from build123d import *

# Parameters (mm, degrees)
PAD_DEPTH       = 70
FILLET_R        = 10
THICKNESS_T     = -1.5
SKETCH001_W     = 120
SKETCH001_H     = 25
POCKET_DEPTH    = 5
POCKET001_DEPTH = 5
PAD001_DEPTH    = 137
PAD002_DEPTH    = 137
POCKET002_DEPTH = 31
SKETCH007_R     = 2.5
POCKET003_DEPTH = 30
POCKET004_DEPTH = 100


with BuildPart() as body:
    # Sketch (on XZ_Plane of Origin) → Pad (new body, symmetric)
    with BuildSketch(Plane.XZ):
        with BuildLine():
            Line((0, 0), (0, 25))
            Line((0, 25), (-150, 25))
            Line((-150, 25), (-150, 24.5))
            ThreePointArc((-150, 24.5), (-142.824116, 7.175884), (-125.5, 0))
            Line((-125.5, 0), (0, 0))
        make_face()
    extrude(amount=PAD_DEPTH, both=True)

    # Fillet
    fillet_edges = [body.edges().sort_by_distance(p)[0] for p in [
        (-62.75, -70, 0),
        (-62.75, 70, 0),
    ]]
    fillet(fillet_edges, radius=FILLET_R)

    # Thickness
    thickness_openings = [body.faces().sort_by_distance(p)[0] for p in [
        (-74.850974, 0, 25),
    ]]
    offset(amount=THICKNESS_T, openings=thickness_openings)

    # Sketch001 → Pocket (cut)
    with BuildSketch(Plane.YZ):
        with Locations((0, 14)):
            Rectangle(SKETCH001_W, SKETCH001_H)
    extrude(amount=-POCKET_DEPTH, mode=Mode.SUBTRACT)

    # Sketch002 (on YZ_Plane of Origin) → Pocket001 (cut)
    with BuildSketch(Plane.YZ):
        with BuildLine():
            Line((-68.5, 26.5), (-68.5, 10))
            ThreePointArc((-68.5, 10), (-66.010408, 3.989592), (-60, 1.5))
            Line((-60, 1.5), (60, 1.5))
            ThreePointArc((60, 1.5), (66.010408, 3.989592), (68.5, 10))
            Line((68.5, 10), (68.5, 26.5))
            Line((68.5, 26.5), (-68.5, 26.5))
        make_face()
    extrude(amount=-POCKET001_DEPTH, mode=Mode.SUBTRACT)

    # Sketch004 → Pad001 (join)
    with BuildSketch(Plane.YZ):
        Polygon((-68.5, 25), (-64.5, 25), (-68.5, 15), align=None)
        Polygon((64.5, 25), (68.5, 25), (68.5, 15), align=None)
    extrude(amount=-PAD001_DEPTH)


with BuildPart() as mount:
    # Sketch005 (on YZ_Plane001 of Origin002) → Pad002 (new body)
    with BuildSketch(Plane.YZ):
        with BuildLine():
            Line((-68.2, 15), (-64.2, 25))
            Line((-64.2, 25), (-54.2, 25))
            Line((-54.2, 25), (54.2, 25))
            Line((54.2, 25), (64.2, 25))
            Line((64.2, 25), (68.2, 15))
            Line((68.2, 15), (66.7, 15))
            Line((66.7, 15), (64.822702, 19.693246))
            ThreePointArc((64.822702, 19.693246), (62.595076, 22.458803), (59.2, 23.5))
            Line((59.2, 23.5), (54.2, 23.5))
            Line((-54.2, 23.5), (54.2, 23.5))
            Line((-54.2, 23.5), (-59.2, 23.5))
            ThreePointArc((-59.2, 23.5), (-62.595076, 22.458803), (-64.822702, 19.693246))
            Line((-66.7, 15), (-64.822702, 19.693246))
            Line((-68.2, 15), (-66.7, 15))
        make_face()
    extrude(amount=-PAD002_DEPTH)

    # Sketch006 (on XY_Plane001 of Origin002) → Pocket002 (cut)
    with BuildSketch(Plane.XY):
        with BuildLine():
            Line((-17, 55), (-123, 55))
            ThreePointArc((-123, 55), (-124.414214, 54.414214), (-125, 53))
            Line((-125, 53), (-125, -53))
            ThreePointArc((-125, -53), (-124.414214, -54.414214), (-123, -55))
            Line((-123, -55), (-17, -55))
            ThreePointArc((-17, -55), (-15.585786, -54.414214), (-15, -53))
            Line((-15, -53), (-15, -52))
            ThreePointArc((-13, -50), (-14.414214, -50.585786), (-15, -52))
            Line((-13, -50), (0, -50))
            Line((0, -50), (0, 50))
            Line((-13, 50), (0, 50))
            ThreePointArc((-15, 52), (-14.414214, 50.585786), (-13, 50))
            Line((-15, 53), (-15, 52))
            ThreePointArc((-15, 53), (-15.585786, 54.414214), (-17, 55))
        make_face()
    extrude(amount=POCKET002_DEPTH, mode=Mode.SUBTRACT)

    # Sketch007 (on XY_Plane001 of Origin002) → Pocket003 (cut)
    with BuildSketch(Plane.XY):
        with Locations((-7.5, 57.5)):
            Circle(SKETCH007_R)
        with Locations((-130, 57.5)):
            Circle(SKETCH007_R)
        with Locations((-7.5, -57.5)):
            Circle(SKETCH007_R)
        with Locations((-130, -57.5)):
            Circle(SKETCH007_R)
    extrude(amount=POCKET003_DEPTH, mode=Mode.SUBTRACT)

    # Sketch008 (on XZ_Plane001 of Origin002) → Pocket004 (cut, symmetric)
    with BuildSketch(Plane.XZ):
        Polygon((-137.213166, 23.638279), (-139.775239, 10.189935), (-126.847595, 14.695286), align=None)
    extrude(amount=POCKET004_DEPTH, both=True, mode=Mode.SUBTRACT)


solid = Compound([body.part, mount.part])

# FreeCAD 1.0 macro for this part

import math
import FreeCAD as App
import Part
import Sketcher
from FreeCAD import Vector
Q = App.Units.Quantity


def edges_at(feature, points):
    """Names of the edges that pass closest to the given points."""
    edges = feature.Shape.Edges
    near = lambda p: min(range(len(edges)), key=lambda i: edges[i].distToShape(Part.Vertex(*p))[0])
    return sorted({f"Edge{near(p) + 1}" for p in points})


def faces_at(feature, points):
    """Names of the faces that lie closest to the given points."""
    faces = feature.Shape.Faces
    near = lambda p: min(range(len(faces)), key=lambda i: faces[i].distToShape(Part.Vertex(*p))[0])
    return sorted({f"Face{near(p) + 1}" for p in points})


def add_polygon(sketch, points):
    """Adds a closed chain of lines whose ends are joined by coincident constraints."""
    first, n = sketch.GeometryCount, len(points)
    for a, b in zip(points, points[1:] + points[:1]):
        sketch.addGeometry(Part.LineSegment(App.Vector(*a, 0), App.Vector(*b, 0)), False)
    for i in range(n):
        sketch.addConstraint(Sketcher.Constraint("Coincident", first + i, 2, first + (i + 1) % n, 1))

doc = App.newDocument("Part")
body = doc.addObject("PartDesign::Body", "Body")

# Sketch on XZ plane
sketch1 = doc.addObject("Sketcher::SketchObject", "Sketch")
body.addObject(sketch1)
sketch1.AttachmentSupport = (doc.XZ_Plane, [""])
sketch1.MapMode = "FlatFace"
sketch1.addGeometry([
    Part.LineSegment(Vector(0, 0, 0), Vector(0, 25, 0)),  # 0
    Part.LineSegment(Vector(0, 25, 0), Vector(-150, 25, 0)),  # 1
    Part.LineSegment(Vector(-150, 25, 0), Vector(-150, 24.5, 0)),  # 2
    Part.ArcOfCircle(Part.Circle(Vector(-125.5, 24.5, 0), Vector(0, 0, 1), 24.5), math.radians(-180), math.radians(-90)),  # 3
    Part.LineSegment(Vector(-125.5, 0, 0), Vector(0, 0, 0)),  # 4
], False)
sketch1.addConstraint([
    Sketcher.Constraint("Coincident", 0, 2, 1, 1),
    Sketcher.Constraint("Coincident", 1, 2, 2, 1),
    Sketcher.Constraint("Tangent", 2, 2, 3, 1),
    Sketcher.Constraint("Tangent", 3, 2, 4, 1),
    Sketcher.Constraint("Coincident", 4, 2, 0, 1),
    Sketcher.Constraint("Vertical", 0),
    Sketcher.Constraint("Horizontal", 1),
    Sketcher.Constraint("Vertical", 2),
    Sketcher.Constraint("Horizontal", 4),
    Sketcher.Constraint("Coincident", 4, 2, -1, 1),
    Sketcher.Constraint("Radius", 3, Q("24.5 mm")),
    Sketcher.Constraint("DistanceX", 1, 2, 1, 1, Q("150 mm")),
    Sketcher.Constraint("DistanceY", 0, 1, 0, 2, Q("25 mm")),
])
pad1 = doc.addObject("PartDesign::Pad", "Pad")
body.addObject(pad1)
pad1.Profile = sketch1
pad1.Length = 140
pad1.Midplane = True
doc.recompute()

fillet = doc.addObject("PartDesign::Fillet", "Fillet")
body.addObject(fillet)
fillet.Base = (pad1, edges_at(pad1, [(-62.75, -70, 0), (-62.75, 70, 0)]))
fillet.Radius = 10
doc.recompute()

thickness = doc.addObject("PartDesign::Thickness", "Thickness")
body.addObject(thickness)
thickness.Base = (fillet, faces_at(fillet, [(-75, 0, 25)]))
thickness.Value = 1.5
thickness.Reversed = True
thickness.Join = "Arc"

# Sketch on YZ plane
sketch2 = doc.addObject("Sketcher::SketchObject", "Sketch001")
body.addObject(sketch2)
sketch2.AttachmentSupport = (doc.YZ_Plane, [""])
sketch2.MapMode = "FlatFace"
add_polygon(sketch2, [(-60, 26), (-60, 2), (60, 2), (60, 26)])  # lines 0-3
sketch2.addConstraint([
    Sketcher.Constraint("Vertical", 0),
    Sketcher.Constraint("Horizontal", 1),
    Sketcher.Constraint("Vertical", 2),
    Sketcher.Constraint("Horizontal", 3),
    Sketcher.Constraint("DistanceX", 1, 1, 1, 2, Q("120 mm")),
    Sketcher.Constraint("DistanceY", 0, 2, 0, 1, Q("25 mm")),
    Sketcher.Constraint("DistanceX", 0, 2, -1, 1, Q("60 mm")),
    Sketcher.Constraint("DistanceY", -1, 1, 0, 2, Q("1.5 mm")),
])
pocket1 = doc.addObject("PartDesign::Pocket", "Pocket")
body.addObject(pocket1)
pocket1.Profile = sketch2
pocket1.Length = 5

# Sketch on YZ plane
sketch3 = doc.addObject("Sketcher::SketchObject", "Sketch002")
body.addObject(sketch3)
sketch3.AttachmentSupport = (doc.YZ_Plane, [""])
sketch3.MapMode = "FlatFace"
sketch3.addGeometry([
    Part.LineSegment(Vector(-68, 26, 0), Vector(-68, 10, 0)),  # 0
    Part.ArcOfCircle(Part.Circle(Vector(-60, 10, 0), Vector(0, 0, 1), 8), math.radians(180), math.radians(270)),  # 1
    Part.LineSegment(Vector(-60, 2, 0), Vector(60, 2, 0)),  # 2
    Part.ArcOfCircle(Part.Circle(Vector(60, 10, 0), Vector(0, 0, 1), 8), math.radians(-90), math.radians(0)),  # 3
    Part.LineSegment(Vector(68, 10, 0), Vector(68, 26, 0)),  # 4
    Part.LineSegment(Vector(68, 26, 0), Vector(-68, 26, 0)),  # 5
], False)
sketch3.addConstraint([
    Sketcher.Constraint("Tangent", 0, 2, 1, 1),
    Sketcher.Constraint("Tangent", 1, 2, 2, 1),
    Sketcher.Constraint("Tangent", 2, 2, 3, 1),
    Sketcher.Constraint("Tangent", 3, 2, 4, 1),
    Sketcher.Constraint("Coincident", 4, 2, 5, 1),
    Sketcher.Constraint("Coincident", 5, 2, 0, 1),
    Sketcher.Constraint("Vertical", 0),
    Sketcher.Constraint("Horizontal", 2),
    Sketcher.Constraint("Vertical", 4),
    Sketcher.Constraint("Horizontal", 5),
    Sketcher.Constraint("Equal", 1, 3),
    Sketcher.Constraint("Radius", 1, Q("8.499999 mm")),
    Sketcher.Constraint("DistanceX", 2, 1, 2, 2, Q("120 mm")),
    Sketcher.Constraint("DistanceY", 0, 2, 0, 1, Q("16.5 mm")),
    Sketcher.Constraint("DistanceX", 1, 3, -1, 1, Q("60.000001 mm")),
    Sketcher.Constraint("DistanceY", -1, 1, 1, 3, Q("9.999999 mm")),
])
pocket2 = doc.addObject("PartDesign::Pocket", "Pocket001")
body.addObject(pocket2)
pocket2.Profile = sketch3
pocket2.Length = 5

# Sketch on YZ plane
sketch4 = doc.addObject("Sketcher::SketchObject", "Sketch003")
body.addObject(sketch4)
sketch4.AttachmentSupport = (doc.YZ_Plane, [""])
sketch4.MapMode = "FlatFace"
add_polygon(sketch4, [(-64.5, 25), (-68.5, 25), (-68.5, 15)])  # lines 0-2
add_polygon(sketch4, [(68.5, 25), (64.5, 25), (68.5, 15)])  # lines 3-5
sketch4.addConstraint([
    Sketcher.Constraint("Horizontal", 0),
    Sketcher.Constraint("Vertical", 1),
    Sketcher.Constraint("Horizontal", 3),
    Sketcher.Constraint("Vertical", 5),
    Sketcher.Constraint("Symmetric", 2, 2, 3, 2, -2),
    Sketcher.Constraint("Symmetric", 1, 2, 4, 2, -2),
    Sketcher.Constraint("DistanceX", 0, 2, 0, 1, Q("4 mm")),
    Sketcher.Constraint("DistanceY", 1, 2, 1, 1, Q("10 mm")),
    Sketcher.Constraint("DistanceY", -1, 1, 0, 2, Q("25 mm")),
    Sketcher.Constraint("DistanceX", 2, 2, 3, 2, Q("129 mm")),
])
pad2 = doc.addObject("PartDesign::Pad", "Pad001")
body.addObject(pad2)
pad2.Profile = sketch4
pad2.Length = 137
pad2.Reversed = True
body2 = doc.addObject("PartDesign::Body", "Body001")

# Sketch on YZ plane
sketch5 = doc.addObject("Sketcher::SketchObject", "Sketch004")
body2.addObject(sketch5)
sketch5.AttachmentSupport = (doc.getObject("YZ_Plane001"), [""])
sketch5.MapMode = "FlatFace"
sketch5.addGeometry([
    Part.LineSegment(Vector(-64.2, 25, 0), Vector(-68.2, 15, 0)),  # 0
    Part.LineSegment(Vector(-68.2, 15, 0), Vector(-66.7, 15, 0)),  # 1
    Part.LineSegment(Vector(-66.7, 15, 0), Vector(-64.8, 19.7, 0)),  # 2
    Part.ArcOfCircle(Part.Circle(Vector(-59.2, 17.4, 0), Vector(0, 0, 1), 6.1), math.radians(90), math.radians(158)),  # 3
    Part.LineSegment(Vector(-59.2, 23.5, 0), Vector(59.2, 23.5, 0)),  # 4
    Part.ArcOfCircle(Part.Circle(Vector(59.2, 17.4, 0), Vector(0, 0, 1), 6.1), math.radians(22), math.radians(90)),  # 5
    Part.LineSegment(Vector(64.8, 19.7, 0), Vector(66.7, 15, 0)),  # 6
    Part.LineSegment(Vector(66.7, 15, 0), Vector(68.2, 15, 0)),  # 7
    Part.LineSegment(Vector(68.2, 15, 0), Vector(64.2, 25, 0)),  # 8
    Part.LineSegment(Vector(64.2, 25, 0), Vector(-64.2, 25, 0)),  # 9
], False)
sketch5.addConstraint([
    Sketcher.Constraint("Coincident", 0, 2, 1, 1),
    Sketcher.Constraint("Coincident", 1, 2, 2, 1),
    Sketcher.Constraint("Tangent", 2, 2, 3, 2),
    Sketcher.Constraint("Tangent", 3, 1, 4, 1),
    Sketcher.Constraint("Tangent", 4, 2, 5, 2),
    Sketcher.Constraint("Tangent", 5, 1, 6, 1),
    Sketcher.Constraint("Coincident", 6, 2, 7, 1),
    Sketcher.Constraint("Coincident", 7, 2, 8, 1),
    Sketcher.Constraint("Coincident", 8, 2, 9, 1),
    Sketcher.Constraint("Coincident", 9, 2, 0, 1),
    Sketcher.Constraint("Horizontal", 1),
    Sketcher.Constraint("Horizontal", 4),
    Sketcher.Constraint("Horizontal", 7),
    Sketcher.Constraint("Horizontal", 9),
    Sketcher.Constraint("Equal", 3, 5),
    Sketcher.Constraint("Symmetric", 2, 2, 5, 1, -2),
    Sketcher.Constraint("Symmetric", 0, 2, 7, 2, -2),
    Sketcher.Constraint("Parallel", 0, 2),
    Sketcher.Constraint("Parallel", 6, 8),
    Sketcher.Constraint("DistanceX", 1, 1, 1, 2, Q("1.5 mm")),
    Sketcher.Constraint("DistanceX", 4, 1, 4, 2, Q("118.4 mm")),
    Sketcher.Constraint("DistanceX", 9, 2, 9, 1, Q("128.4 mm")),
    Sketcher.Constraint("DistanceY", -1, 1, 0, 2, Q("15 mm")),
    Sketcher.Constraint("DistanceY", -1, 1, 8, 2, Q("25 mm")),
    Sketcher.Constraint("DistanceX", 0, 2, 3, 3, Q("9.000001 mm")),
    Sketcher.Constraint("DistanceY", -1, 1, 3, 1, Q("23.5 mm")),
])
pad3 = doc.addObject("PartDesign::Pad", "Pad002")
body2.addObject(pad3)
pad3.Profile = sketch5
pad3.Length = 137
pad3.Reversed = True

# Sketch on XY plane
sketch6 = doc.addObject("Sketcher::SketchObject", "Sketch005")
body2.addObject(sketch6)
sketch6.AttachmentSupport = (doc.getObject("XY_Plane001"), [""])
sketch6.MapMode = "FlatFace"
sketch6.addGeometry([
    Part.LineSegment(Vector(-17, 55, 0), Vector(-123, 55, 0)),  # 0
    Part.ArcOfCircle(Part.Circle(Vector(-123, 53, 0), Vector(0, 0, 1), 2), math.radians(90), math.radians(180)),  # 1
    Part.LineSegment(Vector(-125, 53, 0), Vector(-125, -53, 0)),  # 2
    Part.ArcOfCircle(Part.Circle(Vector(-123, -53, 0), Vector(0, 0, 1), 2), math.radians(180), math.radians(270)),  # 3
    Part.LineSegment(Vector(-123, -55, 0), Vector(-17, -55, 0)),  # 4
    Part.ArcOfCircle(Part.Circle(Vector(-17, -53, 0), Vector(0, 0, 1), 2), math.radians(-90), math.radians(0)),  # 5
    Part.LineSegment(Vector(-15, -53, 0), Vector(-15, -52, 0)),  # 6
    Part.ArcOfCircle(Part.Circle(Vector(-13, -52, 0), Vector(0, 0, 1), 2), math.radians(90), math.radians(180)),  # 7
    Part.LineSegment(Vector(-13, -50, 0), Vector(0, -50, 0)),  # 8
    Part.LineSegment(Vector(0, -50, 0), Vector(0, 50, 0)),  # 9
    Part.LineSegment(Vector(0, 50, 0), Vector(-13, 50, 0)),  # 10
    Part.ArcOfCircle(Part.Circle(Vector(-13, 52, 0), Vector(0, 0, 1), 2), math.radians(180), math.radians(270)),  # 11
    Part.LineSegment(Vector(-15, 52, 0), Vector(-15, 53, 0)),  # 12
    Part.ArcOfCircle(Part.Circle(Vector(-17, 53, 0), Vector(0, 0, 1), 2), math.radians(0), math.radians(90)),  # 13
], False)
sketch6.addConstraint([
    Sketcher.Constraint("Tangent", 0, 2, 1, 1),
    Sketcher.Constraint("Tangent", 1, 2, 2, 1),
    Sketcher.Constraint("Tangent", 2, 2, 3, 1),
    Sketcher.Constraint("Tangent", 3, 2, 4, 1),
    Sketcher.Constraint("Tangent", 4, 2, 5, 1),
    Sketcher.Constraint("Tangent", 5, 2, 6, 1),
    Sketcher.Constraint("Tangent", 6, 2, 7, 2),
    Sketcher.Constraint("Tangent", 7, 1, 8, 1),
    Sketcher.Constraint("Coincident", 8, 2, 9, 1),
    Sketcher.Constraint("Coincident", 9, 2, 10, 1),
    Sketcher.Constraint("Tangent", 10, 2, 11, 2),
    Sketcher.Constraint("Tangent", 11, 1, 12, 1),
    Sketcher.Constraint("Tangent", 12, 2, 13, 1),
    Sketcher.Constraint("Tangent", 13, 2, 0, 1),
    Sketcher.Constraint("Horizontal", 0),
    Sketcher.Constraint("Vertical", 2),
    Sketcher.Constraint("Horizontal", 4),
    Sketcher.Constraint("Vertical", 6),
    Sketcher.Constraint("Horizontal", 8),
    Sketcher.Constraint("Vertical", 9),
    Sketcher.Constraint("Horizontal", 10),
    Sketcher.Constraint("Vertical", 12),
    Sketcher.Constraint("Equal", 1, 3),
    Sketcher.Constraint("Equal", 3, 5),
    Sketcher.Constraint("Equal", 5, 7),
    Sketcher.Constraint("Equal", 7, 11),
    Sketcher.Constraint("Equal", 11, 13),
    Sketcher.Constraint("Symmetric", 8, 2, 9, 2, -1, 1),
    Sketcher.Constraint("Symmetric", 5, 3, 13, 3, -1),
    Sketcher.Constraint("Equal", 4, 2),
    Sketcher.Constraint("Radius", 1, Q("1.999999 mm")),
    Sketcher.Constraint("DistanceX", 0, 2, 0, 1, Q("106 mm")),
    Sketcher.Constraint("DistanceX", 8, 1, 8, 2, Q("13 mm")),
    Sketcher.Constraint("DistanceY", 6, 1, 6, 2, Q("1 mm")),
])
pocket3 = doc.addObject("PartDesign::Pocket", "Pocket002")
body2.addObject(pocket3)
pocket3.Profile = sketch6
pocket3.Length = 31
pocket3.Reversed = True

# Sketch on XY plane
sketch7 = doc.addObject("Sketcher::SketchObject", "Sketch006")
body2.addObject(sketch7)
sketch7.AttachmentSupport = (doc.getObject("XY_Plane001"), [""])
sketch7.MapMode = "FlatFace"
sketch7.addGeometry([
    Part.Circle(Vector(-7.5, 57.5, 0), Vector(0, 0, 1), 2.5),
    Part.Circle(Vector(-130, 57.5, 0), Vector(0, 0, 1), 2.5),
    Part.Circle(Vector(-7.5, -57.5, 0), Vector(0, 0, 1), 2.5),
    Part.Circle(Vector(-130, -57.5, 0), Vector(0, 0, 1), 2.5),
], False)
sketch7.addConstraint([
    Sketcher.Constraint("Equal", 0, 1),
    Sketcher.Constraint("Equal", 1, 2),
    Sketcher.Constraint("Equal", 2, 3),
    Sketcher.Constraint("Symmetric", 0, 3, 2, 3, -1),
    Sketcher.Constraint("Symmetric", 1, 3, 3, 3, -1),
    Sketcher.Constraint("Horizontal", 0, 3, 1, 3),
    Sketcher.Constraint("Diameter", 0, Q("5 mm")),
    Sketcher.Constraint("DistanceX", 1, 3, -1, 1, Q("130 mm")),
    Sketcher.Constraint("DistanceY", 2, 3, 0, 3, Q("115 mm")),
    Sketcher.Constraint("DistanceX", 0, 3, -1, 1, Q("7.5 mm")),
])
pocket4 = doc.addObject("PartDesign::Pocket", "Pocket003")
body2.addObject(pocket4)
pocket4.Profile = sketch7
pocket4.Length = 30
pocket4.Reversed = True

# Sketch on XZ plane
sketch8 = doc.addObject("Sketcher::SketchObject", "Sketch007")
body2.addObject(sketch8)
sketch8.AttachmentSupport = (doc.getObject("XZ_Plane001"), [""])
sketch8.MapMode = "FlatFace"
add_polygon(sketch8, [(-137, 24), (-140, 10), (-127, 15)])  # lines 0-2
sketch8.addConstraint([
    Sketcher.Constraint("Equal", 0, 1),
    Sketcher.Constraint("Equal", 1, 2),
    Sketcher.Constraint("Distance", 0, Q("13.690222 mm")),
    Sketcher.Constraint("DistanceX", 0, 2, -1, 1, Q("139.775239 mm")),
    Sketcher.Constraint("DistanceY", -1, 1, 2, 2, Q("23.638279 mm")),
    Sketcher.Constraint("DistanceY", 0, 2, 1, 2, Q("4.505351 mm")),
])
pocket5 = doc.addObject("PartDesign::Pocket", "Pocket004")
body2.addObject(pocket5)
pocket5.Profile = sketch8
pocket5.Length = 200
pocket5.Midplane = True

doc.recompute()
